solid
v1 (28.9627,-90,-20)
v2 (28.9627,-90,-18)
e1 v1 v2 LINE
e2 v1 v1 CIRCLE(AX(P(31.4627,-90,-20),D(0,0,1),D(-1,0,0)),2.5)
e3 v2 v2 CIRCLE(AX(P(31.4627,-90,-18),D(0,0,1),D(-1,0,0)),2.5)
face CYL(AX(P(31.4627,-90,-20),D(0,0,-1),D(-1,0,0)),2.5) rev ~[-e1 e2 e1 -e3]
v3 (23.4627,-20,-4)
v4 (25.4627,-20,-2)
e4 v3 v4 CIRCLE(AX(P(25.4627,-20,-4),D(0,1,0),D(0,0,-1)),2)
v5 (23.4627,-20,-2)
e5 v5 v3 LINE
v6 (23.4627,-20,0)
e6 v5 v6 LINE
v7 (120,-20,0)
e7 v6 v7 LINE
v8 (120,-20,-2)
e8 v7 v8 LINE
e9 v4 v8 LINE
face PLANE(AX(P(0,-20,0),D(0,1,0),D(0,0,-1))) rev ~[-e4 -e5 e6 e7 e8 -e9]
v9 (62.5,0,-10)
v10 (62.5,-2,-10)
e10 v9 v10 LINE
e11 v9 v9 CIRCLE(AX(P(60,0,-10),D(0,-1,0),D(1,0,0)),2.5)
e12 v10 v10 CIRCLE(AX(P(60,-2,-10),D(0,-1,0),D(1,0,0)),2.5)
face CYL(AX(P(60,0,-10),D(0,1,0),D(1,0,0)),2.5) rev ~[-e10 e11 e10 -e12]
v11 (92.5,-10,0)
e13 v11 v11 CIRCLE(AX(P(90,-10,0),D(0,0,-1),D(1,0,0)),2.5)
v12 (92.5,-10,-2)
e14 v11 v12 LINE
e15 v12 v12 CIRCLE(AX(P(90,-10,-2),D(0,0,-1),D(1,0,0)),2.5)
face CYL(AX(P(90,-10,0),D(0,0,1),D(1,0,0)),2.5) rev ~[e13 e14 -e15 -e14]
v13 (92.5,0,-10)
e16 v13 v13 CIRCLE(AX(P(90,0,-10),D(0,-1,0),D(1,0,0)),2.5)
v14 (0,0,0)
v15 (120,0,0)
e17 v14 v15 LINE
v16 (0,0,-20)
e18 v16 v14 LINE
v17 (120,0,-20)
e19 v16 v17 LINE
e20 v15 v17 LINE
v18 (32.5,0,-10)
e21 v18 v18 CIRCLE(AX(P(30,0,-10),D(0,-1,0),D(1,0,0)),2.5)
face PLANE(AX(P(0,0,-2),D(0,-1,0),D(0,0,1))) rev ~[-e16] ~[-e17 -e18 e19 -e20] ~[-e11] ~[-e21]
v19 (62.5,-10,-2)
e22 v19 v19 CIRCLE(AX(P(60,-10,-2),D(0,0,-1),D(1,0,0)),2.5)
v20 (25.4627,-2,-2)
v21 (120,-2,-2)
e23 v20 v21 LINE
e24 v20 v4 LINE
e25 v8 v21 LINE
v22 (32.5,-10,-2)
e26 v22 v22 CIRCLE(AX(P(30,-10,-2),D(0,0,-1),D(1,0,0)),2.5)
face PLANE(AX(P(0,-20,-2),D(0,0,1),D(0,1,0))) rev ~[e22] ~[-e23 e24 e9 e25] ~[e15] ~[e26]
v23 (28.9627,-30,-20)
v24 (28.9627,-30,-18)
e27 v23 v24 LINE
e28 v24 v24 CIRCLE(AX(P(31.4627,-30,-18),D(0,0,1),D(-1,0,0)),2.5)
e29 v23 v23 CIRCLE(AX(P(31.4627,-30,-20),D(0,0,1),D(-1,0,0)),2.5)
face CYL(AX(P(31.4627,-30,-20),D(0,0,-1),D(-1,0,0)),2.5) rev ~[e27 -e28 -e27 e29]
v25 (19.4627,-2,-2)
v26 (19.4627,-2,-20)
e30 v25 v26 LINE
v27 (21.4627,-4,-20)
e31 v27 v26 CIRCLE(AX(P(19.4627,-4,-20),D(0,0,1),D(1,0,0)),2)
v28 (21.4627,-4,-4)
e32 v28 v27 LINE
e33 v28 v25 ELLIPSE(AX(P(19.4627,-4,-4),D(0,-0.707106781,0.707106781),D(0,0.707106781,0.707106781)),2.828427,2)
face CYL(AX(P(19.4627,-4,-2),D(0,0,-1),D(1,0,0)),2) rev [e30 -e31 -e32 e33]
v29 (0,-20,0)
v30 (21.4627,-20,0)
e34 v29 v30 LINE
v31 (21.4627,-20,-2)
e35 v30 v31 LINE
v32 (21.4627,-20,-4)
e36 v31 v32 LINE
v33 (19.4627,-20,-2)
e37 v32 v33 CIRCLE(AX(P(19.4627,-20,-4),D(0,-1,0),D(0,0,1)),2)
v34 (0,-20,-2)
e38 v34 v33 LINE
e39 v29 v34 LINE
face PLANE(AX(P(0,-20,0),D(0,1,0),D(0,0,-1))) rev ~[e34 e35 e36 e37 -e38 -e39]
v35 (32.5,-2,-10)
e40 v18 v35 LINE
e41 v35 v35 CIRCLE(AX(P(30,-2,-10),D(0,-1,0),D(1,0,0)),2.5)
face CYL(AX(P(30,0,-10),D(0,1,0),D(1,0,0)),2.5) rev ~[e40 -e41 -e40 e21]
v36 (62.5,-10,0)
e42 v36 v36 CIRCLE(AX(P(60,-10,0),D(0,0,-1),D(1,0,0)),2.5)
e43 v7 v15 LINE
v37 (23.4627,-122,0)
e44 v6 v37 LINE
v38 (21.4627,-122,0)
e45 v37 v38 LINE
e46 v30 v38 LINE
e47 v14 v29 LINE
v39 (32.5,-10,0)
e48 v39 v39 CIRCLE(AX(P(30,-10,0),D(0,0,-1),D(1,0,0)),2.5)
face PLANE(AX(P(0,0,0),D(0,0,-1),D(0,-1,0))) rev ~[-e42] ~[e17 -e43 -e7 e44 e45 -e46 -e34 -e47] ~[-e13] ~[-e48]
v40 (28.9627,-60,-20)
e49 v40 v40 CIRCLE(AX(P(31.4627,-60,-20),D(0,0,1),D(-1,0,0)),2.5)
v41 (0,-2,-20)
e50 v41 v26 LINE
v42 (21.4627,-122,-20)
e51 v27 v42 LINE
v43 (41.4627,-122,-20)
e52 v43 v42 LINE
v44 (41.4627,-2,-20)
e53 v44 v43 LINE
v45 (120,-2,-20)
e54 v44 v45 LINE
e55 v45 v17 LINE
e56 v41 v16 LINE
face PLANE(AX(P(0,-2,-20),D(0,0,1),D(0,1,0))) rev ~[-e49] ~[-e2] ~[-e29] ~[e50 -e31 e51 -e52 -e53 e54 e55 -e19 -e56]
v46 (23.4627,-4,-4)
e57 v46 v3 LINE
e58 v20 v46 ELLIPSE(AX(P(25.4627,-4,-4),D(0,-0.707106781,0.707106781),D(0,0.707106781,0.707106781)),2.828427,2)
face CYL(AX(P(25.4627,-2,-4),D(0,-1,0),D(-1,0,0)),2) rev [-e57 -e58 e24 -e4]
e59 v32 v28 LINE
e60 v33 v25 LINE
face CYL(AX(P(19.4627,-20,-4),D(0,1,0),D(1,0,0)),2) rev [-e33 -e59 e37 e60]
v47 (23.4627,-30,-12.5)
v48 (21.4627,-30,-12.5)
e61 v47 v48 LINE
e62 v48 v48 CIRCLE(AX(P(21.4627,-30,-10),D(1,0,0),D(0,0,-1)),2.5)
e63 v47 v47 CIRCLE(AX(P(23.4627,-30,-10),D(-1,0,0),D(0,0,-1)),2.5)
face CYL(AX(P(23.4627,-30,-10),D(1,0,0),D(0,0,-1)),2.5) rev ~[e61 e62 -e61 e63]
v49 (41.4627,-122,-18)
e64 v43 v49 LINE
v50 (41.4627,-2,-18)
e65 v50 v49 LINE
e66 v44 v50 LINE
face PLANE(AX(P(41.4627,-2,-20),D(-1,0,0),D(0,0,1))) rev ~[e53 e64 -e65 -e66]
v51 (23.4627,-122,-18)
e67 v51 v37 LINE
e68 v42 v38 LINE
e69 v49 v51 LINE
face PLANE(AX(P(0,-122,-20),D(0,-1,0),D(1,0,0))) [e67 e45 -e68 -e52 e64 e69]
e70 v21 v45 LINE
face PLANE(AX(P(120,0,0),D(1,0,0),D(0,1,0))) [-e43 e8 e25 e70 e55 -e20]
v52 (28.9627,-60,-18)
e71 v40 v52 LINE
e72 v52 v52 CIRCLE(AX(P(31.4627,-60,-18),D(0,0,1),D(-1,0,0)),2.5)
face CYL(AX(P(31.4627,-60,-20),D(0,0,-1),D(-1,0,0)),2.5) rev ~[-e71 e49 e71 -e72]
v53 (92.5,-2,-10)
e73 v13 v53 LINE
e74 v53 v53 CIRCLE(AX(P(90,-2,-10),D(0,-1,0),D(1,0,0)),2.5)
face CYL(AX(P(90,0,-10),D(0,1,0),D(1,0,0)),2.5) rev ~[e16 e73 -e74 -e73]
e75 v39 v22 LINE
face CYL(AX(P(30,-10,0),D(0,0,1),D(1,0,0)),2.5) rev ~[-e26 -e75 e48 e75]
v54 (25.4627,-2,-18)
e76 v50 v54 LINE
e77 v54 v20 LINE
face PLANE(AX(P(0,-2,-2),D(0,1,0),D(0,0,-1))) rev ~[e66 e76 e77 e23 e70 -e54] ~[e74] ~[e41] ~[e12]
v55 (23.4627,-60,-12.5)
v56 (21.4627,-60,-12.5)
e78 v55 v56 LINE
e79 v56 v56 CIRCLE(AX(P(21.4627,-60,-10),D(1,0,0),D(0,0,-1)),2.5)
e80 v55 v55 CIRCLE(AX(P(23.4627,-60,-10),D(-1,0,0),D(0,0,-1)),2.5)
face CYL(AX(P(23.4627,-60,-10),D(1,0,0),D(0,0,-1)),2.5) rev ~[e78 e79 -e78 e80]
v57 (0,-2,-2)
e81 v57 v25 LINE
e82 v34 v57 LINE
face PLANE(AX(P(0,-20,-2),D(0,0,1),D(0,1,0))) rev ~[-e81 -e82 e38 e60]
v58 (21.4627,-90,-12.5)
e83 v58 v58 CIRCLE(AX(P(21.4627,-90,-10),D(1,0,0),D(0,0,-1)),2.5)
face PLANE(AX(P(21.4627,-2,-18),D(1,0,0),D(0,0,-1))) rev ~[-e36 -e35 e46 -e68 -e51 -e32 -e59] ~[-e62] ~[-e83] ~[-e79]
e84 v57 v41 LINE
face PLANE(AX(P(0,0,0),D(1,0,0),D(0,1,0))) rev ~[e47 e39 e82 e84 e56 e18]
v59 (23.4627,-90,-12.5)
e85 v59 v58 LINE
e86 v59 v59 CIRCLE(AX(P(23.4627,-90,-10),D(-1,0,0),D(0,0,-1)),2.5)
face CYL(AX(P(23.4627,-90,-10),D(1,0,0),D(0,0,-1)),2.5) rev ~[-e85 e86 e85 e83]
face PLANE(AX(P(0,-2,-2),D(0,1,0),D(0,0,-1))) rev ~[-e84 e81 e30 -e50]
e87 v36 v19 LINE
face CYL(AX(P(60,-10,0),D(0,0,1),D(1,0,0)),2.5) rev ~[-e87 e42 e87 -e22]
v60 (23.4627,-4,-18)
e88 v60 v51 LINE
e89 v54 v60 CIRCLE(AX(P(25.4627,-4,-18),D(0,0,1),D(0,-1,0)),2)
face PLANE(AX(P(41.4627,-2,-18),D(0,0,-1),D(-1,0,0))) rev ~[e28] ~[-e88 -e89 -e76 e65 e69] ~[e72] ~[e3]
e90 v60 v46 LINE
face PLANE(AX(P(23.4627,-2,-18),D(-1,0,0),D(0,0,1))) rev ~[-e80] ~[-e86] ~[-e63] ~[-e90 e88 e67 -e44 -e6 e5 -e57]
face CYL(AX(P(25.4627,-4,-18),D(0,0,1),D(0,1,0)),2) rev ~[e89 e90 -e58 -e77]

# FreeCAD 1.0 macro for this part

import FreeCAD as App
import Part
import Sketcher


def edges_at(feature, points):
    """Names of the edges that pass closest to the given points."""
    edges = feature.Shape.Edges
    near = lambda p: min(range(len(edges)), key=lambda i: edges[i].distToShape(Part.Vertex(*p))[0])
    return sorted({f"Edge{near(p) + 1}" for p in points})


def add_polygon(sketch, points):
    """Adds a closed chain of lines whose ends are joined by coincident constraints."""
    first, n = sketch.GeometryCount, len(points)
    for a, b in zip(points, points[1:] + points[:1]):
        sketch.addGeometry(Part.LineSegment(App.Vector(*a, 0), App.Vector(*b, 0)), False)
    for i in range(n):
        sketch.addConstraint(Sketcher.Constraint("Coincident", first + i, 2, first + (i + 1) % n, 1))

doc = App.newDocument("Part")
body = doc.addObject("PartDesign::Body", "Body")

sketch1 = body.newObject("Sketcher::SketchObject", "Sketch")
sketch1.AttachmentSupport = (doc.getObject("YZ_Plane"), [""])
sketch1.MapMode = "FlatFace"
add_polygon(sketch1, [(0, 0), (-20, 0), (-20, -2), (-2, -2), (-2, -20), (0, -20)])
sketch1.addConstraint(Sketcher.Constraint("Horizontal", 0))
sketch1.addConstraint(Sketcher.Constraint("Vertical", 1))
sketch1.addConstraint(Sketcher.Constraint("Horizontal", 2))
sketch1.addConstraint(Sketcher.Constraint("Vertical", 3))
sketch1.addConstraint(Sketcher.Constraint("Horizontal", 4))
sketch1.addConstraint(Sketcher.Constraint("Vertical", 5))
sketch1.addConstraint(Sketcher.Constraint("Coincident", 5, 2, -1, 1))
sketch1.addConstraint(Sketcher.Constraint("Equal", 4, 1))
sketch1.addConstraint(Sketcher.Constraint("Equal", 2, 3))
sketch1.addConstraint(Sketcher.Constraint("DistanceX", 0, 2, 0, 1, 20.0))
sketch1.addConstraint(Sketcher.Constraint("DistanceX", 4, 1, 4, 2, 2.0))
pad1 = body.newObject("PartDesign::Pad", "Pad")
pad1.Profile = sketch1
pad1.Length = 120

sketch2 = body.newObject("Sketcher::SketchObject", "Sketch001")
sketch2.AttachmentSupport = (doc.getObject("XZ_Plane"), [""])
sketch2.MapMode = "FlatFace"
sketch2.addGeometry(Part.Circle(App.Vector(30, -10, 0), App.Vector(0, 0, 1), 2.5), False)
sketch2.addConstraint(Sketcher.Constraint("Diameter", 0, 5.0))
sketch2.addConstraint(Sketcher.Constraint("DistanceX", -1, 1, 0, 3, 30.0))
sketch2.addConstraint(Sketcher.Constraint("DistanceY", 0, 3, -1, 1, 10.0))
pocket1 = body.newObject("PartDesign::Pocket", "Pocket")
pocket1.Profile = sketch2
pocket1.Length = 120
pocket1.Reversed = True
doc.recompute()

linearpattern = body.newObject("PartDesign::LinearPattern", "LinearPattern")
linearpattern.Originals = [pocket1]
linearpattern.Direction = (doc.getObject("X_Axis"), [""])
linearpattern.Mode = "offset"
linearpattern.Offset = 30
linearpattern.Occurrences = 3
body.Tip = linearpattern

sketch3 = body.newObject("Sketcher::SketchObject", "Sketch002")
sketch3.AttachmentSupport = (doc.getObject("XY_Plane"), [""])
sketch3.MapMode = "FlatFace"
sketch3.addGeometry(Part.Circle(App.Vector(30, -10, 0), App.Vector(0, 0, 1), 2.5), False)
sketch3.addConstraint(Sketcher.Constraint("Diameter", 0, 5.0))
sketch3.addConstraint(Sketcher.Constraint("DistanceX", -1, 1, 0, 3, 30.0))
sketch3.addConstraint(Sketcher.Constraint("DistanceY", 0, 3, -1, 1, 10.0))
pocket2 = body.newObject("PartDesign::Pocket", "Pocket001")
pocket2.Profile = sketch3
pocket2.Length = 120
doc.recompute()

linearpattern2 = body.newObject("PartDesign::LinearPattern", "LinearPattern001")
linearpattern2.Originals = [pocket2]
linearpattern2.Direction = (doc.getObject("X_Axis"), [""])
linearpattern2.Mode = "offset"
linearpattern2.Offset = 30
linearpattern2.Occurrences = 3
body.Tip = linearpattern2

sketch4 = body.newObject("Sketcher::SketchObject", "Sketch003")
sketch4.AttachmentSupport = (doc.getObject("XZ_Plane"), [""])
sketch4.MapMode = "FlatFace"
sketch4.AttachmentOffset = App.Placement(App.Vector(0, 0, 2), App.Rotation())
add_polygon(sketch4, [(21.5, -20), (41.5, -20), (41.5, -18), (23.5, -18), (23.5, 0), (21.5, 0)])
sketch4.addConstraint(Sketcher.Constraint("Horizontal", 0))
sketch4.addConstraint(Sketcher.Constraint("Vertical", 1))
sketch4.addConstraint(Sketcher.Constraint("Horizontal", 2))
sketch4.addConstraint(Sketcher.Constraint("Vertical", 3))
sketch4.addConstraint(Sketcher.Constraint("Horizontal", 4))
sketch4.addConstraint(Sketcher.Constraint("Vertical", 5))
sketch4.addConstraint(Sketcher.Constraint("PointOnObject", 3, 2, -1))
sketch4.addConstraint(Sketcher.Constraint("Equal", 4, 1))
sketch4.addConstraint(Sketcher.Constraint("Equal", 2, 3))
sketch4.addConstraint(Sketcher.Constraint("DistanceX", 0, 1, 0, 2, 20.0))
sketch4.addConstraint(Sketcher.Constraint("DistanceX", 4, 2, 4, 1, 2.0))
sketch4.addConstraint(Sketcher.Constraint("DistanceX", -1, 1, 0, 2, 41.4627))
pad2 = body.newObject("PartDesign::Pad", "Pad001")
pad2.Profile = sketch4
pad2.Length = 120

sketch5 = body.newObject("Sketcher::SketchObject", "Sketch004")
sketch5.AttachmentSupport = (doc.getObject("YZ_Plane"), [""])
sketch5.MapMode = "FlatFace"
sketch5.AttachmentOffset = App.Placement(App.Vector(0, 0, 23.4627), App.Rotation())
sketch5.addGeometry(Part.Circle(App.Vector(-30, -10, 0), App.Vector(0, 0, 1), 2.5), False)
sketch5.addConstraint(Sketcher.Constraint("Diameter", 0, 5.0))
sketch5.addConstraint(Sketcher.Constraint("DistanceX", 0, 3, -1, 1, 30.0))
sketch5.addConstraint(Sketcher.Constraint("DistanceY", 0, 3, -1, 1, 10.0))
pocket3 = body.newObject("PartDesign::Pocket", "Pocket002")
pocket3.Profile = sketch5
pocket3.Length = 120
doc.recompute()

linearpattern3 = body.newObject("PartDesign::LinearPattern", "LinearPattern002")
linearpattern3.Originals = [pocket3]
linearpattern3.Direction = (doc.getObject("Y_Axis"), [""])
linearpattern3.Mode = "offset"
linearpattern3.Offset = 30
linearpattern3.Occurrences = 3
linearpattern3.Reversed = True
body.Tip = linearpattern3

sketch6 = body.newObject("Sketcher::SketchObject", "Sketch005")
sketch6.AttachmentSupport = (doc.getObject("XY_Plane"), [""])
sketch6.MapMode = "FlatFace"
sketch6.AttachmentOffset = App.Placement(App.Vector(0, 0, -20), App.Rotation())
sketch6.addGeometry(Part.Circle(App.Vector(31.5, -30, 0), App.Vector(0, 0, 1), 2.5), False)
sketch6.addConstraint(Sketcher.Constraint("Diameter", 0, 5.0))
sketch6.addConstraint(Sketcher.Constraint("DistanceY", 0, 3, -1, 1, 30.0))
sketch6.addConstraint(Sketcher.Constraint("DistanceX", -1, 1, 0, 3, 31.4627))
pocket4 = body.newObject("PartDesign::Pocket", "Pocket003")
pocket4.Profile = sketch6
pocket4.Length = 120
pocket4.Reversed = True
doc.recompute()

linearpattern4 = body.newObject("PartDesign::LinearPattern", "LinearPattern003")
linearpattern4.Originals = [pocket4]
linearpattern4.Direction = (doc.getObject("Y_Axis"), [""])
linearpattern4.Mode = "offset"
linearpattern4.Offset = 30
linearpattern4.Occurrences = 3
linearpattern4.Reversed = True
body.Tip = linearpattern4
doc.recompute()

fillet = body.newObject("PartDesign::Fillet", "Fillet")
fillet.Base = (linearpattern4, edges_at(linearpattern4, [(21.463, -11, -2), (21.463, -2, -11)]))
fillet.Radius = 2
doc.recompute()

fillet2 = body.newObject("PartDesign::Fillet", "Fillet001")
fillet2.Base = (fillet, edges_at(fillet, [(23.463, -2, -10), (23.463, -11, -2)]))
fillet2.Radius = 2

doc.recompute()
